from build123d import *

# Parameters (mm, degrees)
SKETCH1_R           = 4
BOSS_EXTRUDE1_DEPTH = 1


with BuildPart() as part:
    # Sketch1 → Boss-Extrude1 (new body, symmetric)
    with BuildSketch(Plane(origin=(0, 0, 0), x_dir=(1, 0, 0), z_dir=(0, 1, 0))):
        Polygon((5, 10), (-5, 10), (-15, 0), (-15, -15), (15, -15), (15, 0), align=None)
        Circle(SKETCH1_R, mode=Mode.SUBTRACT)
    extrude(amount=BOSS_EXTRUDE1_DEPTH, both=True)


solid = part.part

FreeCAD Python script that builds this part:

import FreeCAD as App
import Part
import Sketcher

V = App.Vector


def add_polygon(sketch, points):
    """Adds a closed chain of lines whose ends are joined by coincident constraints."""
    first, n = sketch.GeometryCount, len(points)
    for a, b in zip(points, points[1:] + points[:1]):
        sketch.addGeometry(Part.LineSegment(App.Vector(*a, 0), App.Vector(*b, 0)), False)
    for i in range(n):
        sketch.addConstraint(Sketcher.Constraint("Coincident", first + i, 2, first + (i + 1) % n, 1))

doc = App.newDocument("Part")
params = doc.addObject("Spreadsheet::Sheet", "Params")
for row, (alias, value) in enumerate([
    ("sketch1_diameter", "8 mm"),
    ("sketch1_width", "10 mm"),
    ("sketch1_width2", "30 mm"),
    ("sketch1_height", "15 mm"),
    ("pad1_length", "2 mm"),
], start=1):
    params.set(f"A{row}", alias)
    params.set(f"B{row}", "=" + value)
    params.setAlias(f"B{row}", alias)

body = doc.addObject("PartDesign::Body", "Body")

sketch1 = body.newObject("Sketcher::SketchObject", "Sketch")
sketch1.AttachmentSupport = (doc.getObject("XZ_Plane"), [""])
sketch1.MapMode = "FlatFace"
add_polygon(sketch1, [(5, -10), (-5, -10), (-15, 0), (-15, 15), (15, 15), (15, 0)])
sketch1.addGeometry(Part.Circle(V(0, 0, 0), V(0, 0, 1), 4), False)
sketch1.addConstraint(Sketcher.Constraint("Horizontal", 0))
sketch1.addConstraint(Sketcher.Constraint("Vertical", 2))
sketch1.addConstraint(Sketcher.Constraint("Horizontal", 3))
sketch1.addConstraint(Sketcher.Constraint("Vertical", 4))
sketch1.addConstraint(Sketcher.Constraint("Coincident", 6, 3, -1, 1))
sketch1.addConstraint(Sketcher.Constraint("Symmetric", 1, 2, 4, 2, -1, 1))
sketch1.addConstraint(Sketcher.Constraint("PointOnObject", 1, 2, -1))
sketch1.addConstraint(Sketcher.Constraint("Perpendicular", 1, 5))
sketch1.addConstraint(Sketcher.Constraint("Equal", 1, 5))
sketch1.addConstraint(Sketcher.Constraint("Diameter", 6, 8.0))
sketch1.addConstraint(Sketcher.Constraint("DistanceX", 0, 2, 0, 1, 10.0))
sketch1.addConstraint(Sketcher.Constraint("DistanceX", 3, 1, 3, 2, 30.0))
sketch1.addConstraint(Sketcher.Constraint("DistanceY", 2, 1, 2, 2, 15.0))
sketch1.setExpression("Constraints[15]", "Params.sketch1_diameter")
sketch1.setExpression("Constraints[16]", "Params.sketch1_width")
sketch1.setExpression("Constraints[17]", "Params.sketch1_width2")
sketch1.setExpression("Constraints[18]", "Params.sketch1_height")
pad1 = body.newObject("PartDesign::Pad", "Pad")
pad1.Profile = sketch1
pad1.setExpression("Length", "Params.pad1_length")
pad1.Midplane = True

doc.recompute()
